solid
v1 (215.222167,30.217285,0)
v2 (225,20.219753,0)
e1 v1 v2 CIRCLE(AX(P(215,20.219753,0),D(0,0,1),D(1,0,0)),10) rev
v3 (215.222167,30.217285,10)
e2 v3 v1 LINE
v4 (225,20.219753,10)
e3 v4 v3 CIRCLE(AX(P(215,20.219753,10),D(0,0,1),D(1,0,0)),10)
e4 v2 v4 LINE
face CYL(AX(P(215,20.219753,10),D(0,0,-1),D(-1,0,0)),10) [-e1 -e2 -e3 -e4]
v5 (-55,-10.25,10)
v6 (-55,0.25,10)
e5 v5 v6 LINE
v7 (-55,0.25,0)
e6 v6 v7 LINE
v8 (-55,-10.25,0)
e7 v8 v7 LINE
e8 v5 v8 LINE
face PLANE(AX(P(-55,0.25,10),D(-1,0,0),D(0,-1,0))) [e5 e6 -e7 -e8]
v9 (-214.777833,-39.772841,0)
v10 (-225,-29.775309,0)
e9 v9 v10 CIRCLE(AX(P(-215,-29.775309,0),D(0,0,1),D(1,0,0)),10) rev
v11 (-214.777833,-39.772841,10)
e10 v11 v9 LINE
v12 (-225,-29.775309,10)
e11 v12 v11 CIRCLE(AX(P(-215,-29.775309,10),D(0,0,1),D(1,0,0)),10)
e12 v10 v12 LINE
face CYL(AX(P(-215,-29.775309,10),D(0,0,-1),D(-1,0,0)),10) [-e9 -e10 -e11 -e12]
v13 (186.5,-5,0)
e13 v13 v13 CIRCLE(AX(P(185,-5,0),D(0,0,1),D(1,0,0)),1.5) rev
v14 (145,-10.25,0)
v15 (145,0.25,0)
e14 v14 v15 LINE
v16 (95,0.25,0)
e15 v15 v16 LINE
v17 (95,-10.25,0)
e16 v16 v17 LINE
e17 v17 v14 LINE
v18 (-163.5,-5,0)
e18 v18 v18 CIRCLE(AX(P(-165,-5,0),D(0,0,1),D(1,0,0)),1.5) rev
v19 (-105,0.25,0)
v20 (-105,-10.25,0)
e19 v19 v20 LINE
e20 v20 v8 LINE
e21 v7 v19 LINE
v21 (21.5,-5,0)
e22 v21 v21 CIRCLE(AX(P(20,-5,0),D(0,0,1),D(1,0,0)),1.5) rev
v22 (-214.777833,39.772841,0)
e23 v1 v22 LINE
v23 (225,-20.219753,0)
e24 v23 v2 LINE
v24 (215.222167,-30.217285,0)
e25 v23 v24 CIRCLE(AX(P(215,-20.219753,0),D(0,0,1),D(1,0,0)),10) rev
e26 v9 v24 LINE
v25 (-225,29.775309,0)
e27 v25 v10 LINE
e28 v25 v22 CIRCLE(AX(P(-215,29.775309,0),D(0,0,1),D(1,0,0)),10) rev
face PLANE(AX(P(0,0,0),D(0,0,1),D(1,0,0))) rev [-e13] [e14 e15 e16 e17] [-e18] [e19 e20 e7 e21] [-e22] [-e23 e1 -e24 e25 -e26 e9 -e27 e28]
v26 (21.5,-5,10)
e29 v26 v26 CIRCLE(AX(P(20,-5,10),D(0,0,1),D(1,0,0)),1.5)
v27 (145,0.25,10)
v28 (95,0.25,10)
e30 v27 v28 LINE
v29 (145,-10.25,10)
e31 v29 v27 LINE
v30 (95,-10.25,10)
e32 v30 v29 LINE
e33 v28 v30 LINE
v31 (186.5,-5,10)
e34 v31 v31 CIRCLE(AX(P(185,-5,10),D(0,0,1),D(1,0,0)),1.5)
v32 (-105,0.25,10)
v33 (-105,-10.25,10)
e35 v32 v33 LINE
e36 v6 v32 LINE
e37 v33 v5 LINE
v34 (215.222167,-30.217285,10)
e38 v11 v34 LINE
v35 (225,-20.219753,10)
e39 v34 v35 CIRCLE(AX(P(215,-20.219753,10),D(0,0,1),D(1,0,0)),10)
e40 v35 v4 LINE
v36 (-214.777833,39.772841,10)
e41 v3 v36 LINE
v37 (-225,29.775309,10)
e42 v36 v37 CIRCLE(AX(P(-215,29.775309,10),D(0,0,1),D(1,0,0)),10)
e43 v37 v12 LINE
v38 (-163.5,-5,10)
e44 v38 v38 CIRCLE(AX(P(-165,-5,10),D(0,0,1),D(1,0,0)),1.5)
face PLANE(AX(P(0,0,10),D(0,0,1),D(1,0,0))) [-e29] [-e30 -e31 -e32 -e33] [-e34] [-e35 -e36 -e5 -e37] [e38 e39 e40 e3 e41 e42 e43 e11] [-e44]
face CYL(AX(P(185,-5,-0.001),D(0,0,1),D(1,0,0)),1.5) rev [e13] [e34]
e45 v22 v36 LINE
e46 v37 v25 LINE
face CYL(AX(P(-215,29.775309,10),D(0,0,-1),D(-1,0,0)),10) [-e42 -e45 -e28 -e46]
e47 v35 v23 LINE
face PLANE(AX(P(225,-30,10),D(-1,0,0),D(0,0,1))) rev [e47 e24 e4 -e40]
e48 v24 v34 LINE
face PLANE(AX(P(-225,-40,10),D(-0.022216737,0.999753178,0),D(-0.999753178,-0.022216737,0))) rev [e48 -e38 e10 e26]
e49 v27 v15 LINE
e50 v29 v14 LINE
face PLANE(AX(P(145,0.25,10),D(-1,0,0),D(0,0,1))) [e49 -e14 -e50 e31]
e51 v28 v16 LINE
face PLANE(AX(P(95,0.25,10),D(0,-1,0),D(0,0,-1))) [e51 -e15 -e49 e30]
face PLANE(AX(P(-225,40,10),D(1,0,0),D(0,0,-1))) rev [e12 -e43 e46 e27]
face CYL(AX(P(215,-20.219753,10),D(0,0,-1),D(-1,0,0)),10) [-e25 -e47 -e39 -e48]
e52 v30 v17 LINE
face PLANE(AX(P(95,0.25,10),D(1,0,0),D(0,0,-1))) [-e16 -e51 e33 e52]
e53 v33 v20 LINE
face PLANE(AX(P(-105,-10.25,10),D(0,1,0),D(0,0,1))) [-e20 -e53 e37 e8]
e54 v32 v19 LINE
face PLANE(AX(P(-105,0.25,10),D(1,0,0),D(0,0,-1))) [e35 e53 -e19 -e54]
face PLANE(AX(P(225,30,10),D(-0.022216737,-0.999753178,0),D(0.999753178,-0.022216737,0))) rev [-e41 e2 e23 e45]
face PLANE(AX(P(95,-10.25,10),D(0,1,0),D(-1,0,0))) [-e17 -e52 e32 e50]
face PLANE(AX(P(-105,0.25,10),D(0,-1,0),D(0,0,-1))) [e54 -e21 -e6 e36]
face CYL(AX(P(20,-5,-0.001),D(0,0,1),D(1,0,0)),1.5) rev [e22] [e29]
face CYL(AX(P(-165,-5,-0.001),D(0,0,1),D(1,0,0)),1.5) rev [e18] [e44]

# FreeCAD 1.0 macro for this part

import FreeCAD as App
import Part
import Sketcher
Q = App.Units.Quantity


def edges_at(feature, points):
    """Names of the edges that pass closest to the given points."""
    edges = feature.Shape.Edges
    near = lambda p: min(range(len(edges)), key=lambda i: edges[i].distToShape(Part.Vertex(*p))[0])
    return sorted({f"Edge{near(p) + 1}" for p in points})


def add_polygon(sketch, points):
    """Adds a closed chain of lines whose ends are joined by coincident constraints."""
    first, n = sketch.GeometryCount, len(points)
    for a, b in zip(points, points[1:] + points[:1]):
        sketch.addGeometry(Part.LineSegment(App.Vector(*a, 0), App.Vector(*b, 0)), False)
    for i in range(n):
        sketch.addConstraint(Sketcher.Constraint("Coincident", first + i, 2, first + (i + 1) % n, 1))

doc = App.newDocument("Part")
body = doc.addObject("PartDesign::Body", "Body")

sketch1 = body.newObject("Sketcher::SketchObject", "Sketch")
sketch1.AttachmentSupport = (doc.getObject("XY_Plane"), [""])
sketch1.MapMode = "FlatFace"
add_polygon(sketch1, [(-225, 40), (-225, -40), (225, -30), (225, 30)])
add_polygon(sketch1, [(-55, -10), (-105, -10), (-105, 0), (-55, 0)])
add_polygon(sketch1, [(145, -10), (95, -10), (95, 0), (145, 0)])
sketch1.addConstraint(Sketcher.Constraint("Vertical", 0))
sketch1.addConstraint(Sketcher.Constraint("Vertical", 2))
sketch1.addConstraint(Sketcher.Constraint("Horizontal", 4))
sketch1.addConstraint(Sketcher.Constraint("Vertical", 5))
sketch1.addConstraint(Sketcher.Constraint("Horizontal", 6))
sketch1.addConstraint(Sketcher.Constraint("Vertical", 7))
sketch1.addConstraint(Sketcher.Constraint("Horizontal", 8))
sketch1.addConstraint(Sketcher.Constraint("Vertical", 9))
sketch1.addConstraint(Sketcher.Constraint("Horizontal", 10))
sketch1.addConstraint(Sketcher.Constraint("Vertical", 11))
sketch1.addConstraint(Sketcher.Constraint("Horizontal", 7, 2, 8, 2))
sketch1.addConstraint(Sketcher.Constraint("Horizontal", 6, 2, 9, 2))
sketch1.addConstraint(Sketcher.Constraint("Equal", 6, 8))
sketch1.addConstraint(Sketcher.Constraint("Equal", 1, 3))
sketch1.addConstraint(Sketcher.Constraint("DistanceX", 4, 2, 4, 1, Q("50 mm")))
sketch1.addConstraint(Sketcher.Constraint("DistanceY", 0, 2, 0, 1, Q("80 mm")))
sketch1.addConstraint(Sketcher.Constraint("DistanceY", 2, 1, 2, 2, Q("60 mm")))
sketch1.addConstraint(Sketcher.Constraint("DistanceY", 5, 1, 5, 2, Q("10.5 mm")))
sketch1.addConstraint(Sketcher.Constraint("DistanceX", 0, 2, -1, 1, Q("225 mm")))
sketch1.addConstraint(Sketcher.Constraint("DistanceY", 0, 2, -1, 1, Q("40 mm")))
sketch1.addConstraint(Sketcher.Constraint("DistanceX", -1, 1, 1, 2, Q("225 mm")))
sketch1.addConstraint(Sketcher.Constraint("DistanceX", 4, 2, -1, 1, Q("105 mm")))
sketch1.addConstraint(Sketcher.Constraint("DistanceX", -1, 1, 8, 2, Q("95 mm")))
sketch1.addConstraint(Sketcher.Constraint("DistanceY", 4, 2, -1, 1, Q("10.25 mm")))
pad1 = body.newObject("PartDesign::Pad", "Pad")
pad1.Profile = sketch1
pad1.Length = 10
doc.recompute()

fillet = body.newObject("PartDesign::Fillet", "Fillet")
fillet.Base = (pad1, edges_at(pad1, [
    (225, 30, 5),
    (225, -30, 5),
    (-225, -40, 5),
    (-225, 40, 5),
]))
fillet.Radius = 10

sketch2 = body.newObject("Sketcher::SketchObject", "Sketch001")
sketch2.AttachmentSupport = (doc.getObject("XY_Plane"), [""])
sketch2.MapMode = "FlatFace"
sketch2.AttachmentOffset = App.Placement(App.Vector(0, 0, 10), App.Rotation())
sketch2.addGeometry(Part.Circle(App.Vector(-165, -5, 0), App.Vector(0, 0, 1), 1.5), False)
sketch2.addConstraint(Sketcher.Constraint("Diameter", 0, Q("3 mm")))
sketch2.addConstraint(Sketcher.Constraint("DistanceX", 0, 3, -1, 1, Q("165 mm")))
sketch2.addConstraint(Sketcher.Constraint("DistanceY", 0, 3, -1, 1, Q("5 mm")))
pocket1 = body.newObject("PartDesign::Pocket", "Pocket")
pocket1.Profile = sketch2
pocket1.Type = "UpToFirst"

sketch3 = body.newObject("Sketcher::SketchObject", "Sketch002")
sketch3.AttachmentSupport = (doc.getObject("XY_Plane"), [""])
sketch3.MapMode = "FlatFace"
sketch3.AttachmentOffset = App.Placement(App.Vector(0, 0, 10), App.Rotation())
sketch3.addGeometry(Part.Circle(App.Vector(20, -5, 0), App.Vector(0, 0, 1), 1.5), False)
sketch3.addConstraint(Sketcher.Constraint("Diameter", 0, Q("3 mm")))
sketch3.addConstraint(Sketcher.Constraint("DistanceX", -1, 1, 0, 3, Q("20 mm")))
sketch3.addConstraint(Sketcher.Constraint("DistanceY", 0, 3, -1, 1, Q("5 mm")))
pocket2 = body.newObject("PartDesign::Pocket", "Pocket001")
pocket2.Profile = sketch3
pocket2.Type = "UpToFirst"

sketch4 = body.newObject("Sketcher::SketchObject", "Sketch003")
sketch4.AttachmentSupport = (doc.getObject("XY_Plane"), [""])
sketch4.MapMode = "FlatFace"
sketch4.AttachmentOffset = App.Placement(App.Vector(0, 0, 10), App.Rotation())
sketch4.addGeometry(Part.Circle(App.Vector(185, -5, 0), App.Vector(0, 0, 1), 1.5), False)
sketch4.addConstraint(Sketcher.Constraint("Diameter", 0, Q("3 mm")))
sketch4.addConstraint(Sketcher.Constraint("DistanceX", -1, 1, 0, 3, Q("185 mm")))
sketch4.addConstraint(Sketcher.Constraint("DistanceY", 0, 3, -1, 1, Q("5 mm")))
pocket3 = body.newObject("PartDesign::Pocket", "Pocket002")
pocket3.Profile = sketch4
pocket3.Type = "UpToFirst"

doc.recompute()
